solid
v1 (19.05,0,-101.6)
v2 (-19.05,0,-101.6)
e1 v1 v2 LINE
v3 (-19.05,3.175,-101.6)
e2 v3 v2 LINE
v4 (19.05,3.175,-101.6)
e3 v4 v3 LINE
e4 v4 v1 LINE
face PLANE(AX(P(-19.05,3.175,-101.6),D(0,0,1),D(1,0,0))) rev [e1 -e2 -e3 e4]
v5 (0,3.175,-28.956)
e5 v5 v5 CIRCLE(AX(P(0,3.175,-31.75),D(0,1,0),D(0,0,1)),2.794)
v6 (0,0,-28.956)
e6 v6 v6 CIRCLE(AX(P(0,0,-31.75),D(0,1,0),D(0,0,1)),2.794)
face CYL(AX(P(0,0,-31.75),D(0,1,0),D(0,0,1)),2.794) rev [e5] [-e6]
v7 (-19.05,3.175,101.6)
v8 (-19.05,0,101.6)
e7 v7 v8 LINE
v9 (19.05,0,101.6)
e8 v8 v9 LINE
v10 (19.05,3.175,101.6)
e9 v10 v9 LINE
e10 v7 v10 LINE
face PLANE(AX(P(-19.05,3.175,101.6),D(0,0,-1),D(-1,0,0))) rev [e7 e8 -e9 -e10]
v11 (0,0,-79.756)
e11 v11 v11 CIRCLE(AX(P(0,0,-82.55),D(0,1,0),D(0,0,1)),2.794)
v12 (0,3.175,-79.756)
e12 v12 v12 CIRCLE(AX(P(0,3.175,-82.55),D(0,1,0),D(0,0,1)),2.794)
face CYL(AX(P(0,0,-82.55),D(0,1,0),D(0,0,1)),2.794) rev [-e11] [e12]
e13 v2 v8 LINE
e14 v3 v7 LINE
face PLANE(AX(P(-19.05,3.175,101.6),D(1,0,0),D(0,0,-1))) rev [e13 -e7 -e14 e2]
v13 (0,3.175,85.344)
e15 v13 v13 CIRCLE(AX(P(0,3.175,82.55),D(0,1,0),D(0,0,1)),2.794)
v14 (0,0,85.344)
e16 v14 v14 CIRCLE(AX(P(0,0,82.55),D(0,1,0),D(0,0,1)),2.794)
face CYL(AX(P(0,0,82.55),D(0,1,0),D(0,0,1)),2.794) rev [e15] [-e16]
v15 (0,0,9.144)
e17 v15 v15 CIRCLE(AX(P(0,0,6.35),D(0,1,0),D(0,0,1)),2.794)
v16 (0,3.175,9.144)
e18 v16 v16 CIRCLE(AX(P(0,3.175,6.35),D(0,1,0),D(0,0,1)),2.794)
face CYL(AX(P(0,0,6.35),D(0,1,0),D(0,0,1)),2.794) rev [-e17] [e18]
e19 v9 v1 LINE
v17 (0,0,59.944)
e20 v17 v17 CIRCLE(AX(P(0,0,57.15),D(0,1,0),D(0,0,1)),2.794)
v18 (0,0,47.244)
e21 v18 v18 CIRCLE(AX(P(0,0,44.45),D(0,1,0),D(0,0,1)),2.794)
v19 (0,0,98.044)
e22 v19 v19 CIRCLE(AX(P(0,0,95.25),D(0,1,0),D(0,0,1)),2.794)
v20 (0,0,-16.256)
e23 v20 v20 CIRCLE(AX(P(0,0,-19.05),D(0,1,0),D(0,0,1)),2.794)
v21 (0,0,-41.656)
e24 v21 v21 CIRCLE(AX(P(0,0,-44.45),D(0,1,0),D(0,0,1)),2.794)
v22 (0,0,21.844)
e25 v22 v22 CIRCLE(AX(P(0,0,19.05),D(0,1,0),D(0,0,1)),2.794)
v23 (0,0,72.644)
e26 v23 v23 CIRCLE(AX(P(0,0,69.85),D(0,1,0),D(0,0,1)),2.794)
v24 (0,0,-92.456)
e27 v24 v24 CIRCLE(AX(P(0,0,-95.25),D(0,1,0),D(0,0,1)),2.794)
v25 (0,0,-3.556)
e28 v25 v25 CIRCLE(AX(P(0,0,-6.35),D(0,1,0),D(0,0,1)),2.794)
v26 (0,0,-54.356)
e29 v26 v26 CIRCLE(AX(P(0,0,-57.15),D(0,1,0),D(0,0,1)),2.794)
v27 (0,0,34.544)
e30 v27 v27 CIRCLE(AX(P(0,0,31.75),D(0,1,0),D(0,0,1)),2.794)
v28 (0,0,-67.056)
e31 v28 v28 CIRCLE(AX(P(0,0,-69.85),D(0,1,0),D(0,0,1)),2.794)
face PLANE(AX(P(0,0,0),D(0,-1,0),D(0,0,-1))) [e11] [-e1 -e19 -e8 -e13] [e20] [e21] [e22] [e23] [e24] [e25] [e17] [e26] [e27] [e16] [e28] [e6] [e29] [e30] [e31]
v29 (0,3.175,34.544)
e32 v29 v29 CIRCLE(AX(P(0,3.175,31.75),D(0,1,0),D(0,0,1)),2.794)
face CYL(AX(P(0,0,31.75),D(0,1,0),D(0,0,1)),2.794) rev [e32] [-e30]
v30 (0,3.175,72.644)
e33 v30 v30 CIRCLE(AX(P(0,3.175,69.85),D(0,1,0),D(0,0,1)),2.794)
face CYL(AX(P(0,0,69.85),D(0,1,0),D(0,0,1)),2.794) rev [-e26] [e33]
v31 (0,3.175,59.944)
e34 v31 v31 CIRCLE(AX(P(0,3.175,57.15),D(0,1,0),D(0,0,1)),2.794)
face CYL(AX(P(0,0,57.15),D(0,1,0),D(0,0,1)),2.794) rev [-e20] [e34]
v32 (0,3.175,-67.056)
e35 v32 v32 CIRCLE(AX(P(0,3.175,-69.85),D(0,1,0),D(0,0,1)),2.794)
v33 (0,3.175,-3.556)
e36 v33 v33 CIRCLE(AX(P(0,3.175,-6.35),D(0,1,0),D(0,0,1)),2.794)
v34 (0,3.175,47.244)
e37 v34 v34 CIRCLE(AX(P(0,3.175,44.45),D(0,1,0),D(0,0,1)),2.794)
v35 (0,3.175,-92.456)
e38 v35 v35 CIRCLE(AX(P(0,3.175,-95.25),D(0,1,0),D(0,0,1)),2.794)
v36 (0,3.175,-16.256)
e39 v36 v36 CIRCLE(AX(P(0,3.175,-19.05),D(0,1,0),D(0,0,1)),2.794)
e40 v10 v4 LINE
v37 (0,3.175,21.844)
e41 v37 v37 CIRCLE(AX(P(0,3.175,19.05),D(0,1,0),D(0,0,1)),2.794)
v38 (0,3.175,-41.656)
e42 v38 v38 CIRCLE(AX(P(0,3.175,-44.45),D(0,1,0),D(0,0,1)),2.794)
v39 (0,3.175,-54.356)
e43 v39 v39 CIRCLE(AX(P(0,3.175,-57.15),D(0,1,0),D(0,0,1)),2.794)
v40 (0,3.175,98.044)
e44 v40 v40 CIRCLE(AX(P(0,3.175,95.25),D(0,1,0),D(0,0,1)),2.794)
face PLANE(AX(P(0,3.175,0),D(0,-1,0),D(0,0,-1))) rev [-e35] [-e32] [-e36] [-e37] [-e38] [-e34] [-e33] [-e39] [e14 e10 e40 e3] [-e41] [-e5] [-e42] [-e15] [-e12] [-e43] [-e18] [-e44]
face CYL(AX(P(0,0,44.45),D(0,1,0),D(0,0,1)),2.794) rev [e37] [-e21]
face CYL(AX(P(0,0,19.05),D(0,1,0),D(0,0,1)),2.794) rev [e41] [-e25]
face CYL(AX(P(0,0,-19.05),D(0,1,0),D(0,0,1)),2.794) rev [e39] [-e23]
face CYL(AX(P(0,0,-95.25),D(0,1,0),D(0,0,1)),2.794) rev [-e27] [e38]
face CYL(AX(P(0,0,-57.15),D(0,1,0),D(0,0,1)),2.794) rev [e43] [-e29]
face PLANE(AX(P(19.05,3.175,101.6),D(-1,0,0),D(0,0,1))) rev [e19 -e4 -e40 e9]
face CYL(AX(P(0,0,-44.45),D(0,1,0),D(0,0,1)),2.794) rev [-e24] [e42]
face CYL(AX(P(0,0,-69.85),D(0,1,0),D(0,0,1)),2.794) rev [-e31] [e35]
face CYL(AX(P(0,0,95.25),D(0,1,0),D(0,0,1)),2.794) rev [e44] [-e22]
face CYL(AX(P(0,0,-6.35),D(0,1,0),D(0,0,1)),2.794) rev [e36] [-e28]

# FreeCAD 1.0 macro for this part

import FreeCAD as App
import Part
import Sketcher
from FreeCAD import Vector
Q = App.Units.Quantity

doc = App.newDocument("Part")
params = doc.addObject("Spreadsheet::Sheet", "Params")
for row, (alias, value) in enumerate([
    ("sketch1_height", "8 in"),
    ("sketch1_width", "1.5 in"),
    ("pad1_length", "0.125 in"),
    ("sketch2_diameter", "0.22 in"),
    ("pocket1_length", "0.125 in"),
    ("linearpattern_pitch", "0.5 in"),
], start=1):
    params.set(f"A{row}", alias)
    params.set(f"B{row}", "=" + value)
    params.setAlias(f"B{row}", alias)

body = doc.addObject("PartDesign::Body", "Body")

# Sketch on XZ plane
sketch1 = doc.addObject("Sketcher::SketchObject", "Sketch")
body.addObject(sketch1)
sketch1.AttachmentSupport = (doc.XZ_Plane, [""])
sketch1.MapMode = "FlatFace"
sketch1.addGeometry([
    Part.LineSegment(Vector(-19.05, -101.6, 0), Vector(-19.05, 101.6, 0)),
    Part.LineSegment(Vector(-19.05, 101.6, 0), Vector(19.05, 101.6, 0)),
    Part.LineSegment(Vector(19.05, 101.6, 0), Vector(19.05, -101.6, 0)),
    Part.LineSegment(Vector(19.05, -101.6, 0), Vector(-19.05, -101.6, 0)),
], False)
sketch1.addConstraint([
    Sketcher.Constraint("Coincident", 0, 2, 1, 1),
    Sketcher.Constraint("Coincident", 1, 2, 2, 1),
    Sketcher.Constraint("Coincident", 2, 2, 3, 1),
    Sketcher.Constraint("Coincident", 3, 2, 0, 1),
    Sketcher.Constraint("Vertical", 0),
    Sketcher.Constraint("Horizontal", 1),
    Sketcher.Constraint("Vertical", 2),
    Sketcher.Constraint("Horizontal", 3),
    Sketcher.Constraint("Symmetric", 0, 2, 2, 2, -1, 1),
    Sketcher.Constraint("DistanceY", 0, 1, 0, 2, Q("8 in")),
    Sketcher.Constraint("DistanceX", 1, 1, 1, 2, Q("1.5 in")),
])
sketch1.setExpression("Constraints[9]", "Params.sketch1_height")
sketch1.setExpression("Constraints[10]", "Params.sketch1_width")
pad1 = doc.addObject("PartDesign::Pad", "Pad")
body.addObject(pad1)
pad1.Profile = sketch1
pad1.setExpression("Length", "Params.pad1_length")
pad1.Reversed = True

# Sketch on XZ plane
sketch2 = doc.addObject("Sketcher::SketchObject", "Sketch001")
body.addObject(sketch2)
sketch2.AttachmentSupport = (doc.XZ_Plane, [""])
sketch2.MapMode = "FlatFace"
sketch2.AttachmentOffset = App.Placement(Vector(0, 0, -0.125 * 25.4), App.Rotation())
sketch2.addGeometry(Part.Circle(Vector(0, 95.25, 0), Vector(0, 0, 1), 2.794), False)
sketch2.addConstraint([
    Sketcher.Constraint("PointOnObject", 0, 3, -2),
    Sketcher.Constraint("Diameter", 0, Q("0.22 in")),
    Sketcher.Constraint("DistanceY", -1, 1, 0, 3, Q("3.75 in")),
])
sketch2.setExpression("Constraints[1]", "Params.sketch2_diameter")
pocket1 = doc.addObject("PartDesign::Pocket", "Pocket")
body.addObject(pocket1)
pocket1.Profile = sketch2
pocket1.setExpression("Length", "Params.pocket1_length")
pocket1.Reversed = True
doc.recompute()

linearpattern = doc.addObject("PartDesign::LinearPattern", "LinearPattern")
body.addObject(linearpattern)
linearpattern.Originals = [pocket1]
linearpattern.Direction = (doc.Z_Axis, [""])
linearpattern.Mode = "offset"
linearpattern.setExpression("Offset", "Params.linearpattern_pitch")
linearpattern.Occurrences = 16
linearpattern.Reversed = True
body.Tip = linearpattern

doc.recompute()
